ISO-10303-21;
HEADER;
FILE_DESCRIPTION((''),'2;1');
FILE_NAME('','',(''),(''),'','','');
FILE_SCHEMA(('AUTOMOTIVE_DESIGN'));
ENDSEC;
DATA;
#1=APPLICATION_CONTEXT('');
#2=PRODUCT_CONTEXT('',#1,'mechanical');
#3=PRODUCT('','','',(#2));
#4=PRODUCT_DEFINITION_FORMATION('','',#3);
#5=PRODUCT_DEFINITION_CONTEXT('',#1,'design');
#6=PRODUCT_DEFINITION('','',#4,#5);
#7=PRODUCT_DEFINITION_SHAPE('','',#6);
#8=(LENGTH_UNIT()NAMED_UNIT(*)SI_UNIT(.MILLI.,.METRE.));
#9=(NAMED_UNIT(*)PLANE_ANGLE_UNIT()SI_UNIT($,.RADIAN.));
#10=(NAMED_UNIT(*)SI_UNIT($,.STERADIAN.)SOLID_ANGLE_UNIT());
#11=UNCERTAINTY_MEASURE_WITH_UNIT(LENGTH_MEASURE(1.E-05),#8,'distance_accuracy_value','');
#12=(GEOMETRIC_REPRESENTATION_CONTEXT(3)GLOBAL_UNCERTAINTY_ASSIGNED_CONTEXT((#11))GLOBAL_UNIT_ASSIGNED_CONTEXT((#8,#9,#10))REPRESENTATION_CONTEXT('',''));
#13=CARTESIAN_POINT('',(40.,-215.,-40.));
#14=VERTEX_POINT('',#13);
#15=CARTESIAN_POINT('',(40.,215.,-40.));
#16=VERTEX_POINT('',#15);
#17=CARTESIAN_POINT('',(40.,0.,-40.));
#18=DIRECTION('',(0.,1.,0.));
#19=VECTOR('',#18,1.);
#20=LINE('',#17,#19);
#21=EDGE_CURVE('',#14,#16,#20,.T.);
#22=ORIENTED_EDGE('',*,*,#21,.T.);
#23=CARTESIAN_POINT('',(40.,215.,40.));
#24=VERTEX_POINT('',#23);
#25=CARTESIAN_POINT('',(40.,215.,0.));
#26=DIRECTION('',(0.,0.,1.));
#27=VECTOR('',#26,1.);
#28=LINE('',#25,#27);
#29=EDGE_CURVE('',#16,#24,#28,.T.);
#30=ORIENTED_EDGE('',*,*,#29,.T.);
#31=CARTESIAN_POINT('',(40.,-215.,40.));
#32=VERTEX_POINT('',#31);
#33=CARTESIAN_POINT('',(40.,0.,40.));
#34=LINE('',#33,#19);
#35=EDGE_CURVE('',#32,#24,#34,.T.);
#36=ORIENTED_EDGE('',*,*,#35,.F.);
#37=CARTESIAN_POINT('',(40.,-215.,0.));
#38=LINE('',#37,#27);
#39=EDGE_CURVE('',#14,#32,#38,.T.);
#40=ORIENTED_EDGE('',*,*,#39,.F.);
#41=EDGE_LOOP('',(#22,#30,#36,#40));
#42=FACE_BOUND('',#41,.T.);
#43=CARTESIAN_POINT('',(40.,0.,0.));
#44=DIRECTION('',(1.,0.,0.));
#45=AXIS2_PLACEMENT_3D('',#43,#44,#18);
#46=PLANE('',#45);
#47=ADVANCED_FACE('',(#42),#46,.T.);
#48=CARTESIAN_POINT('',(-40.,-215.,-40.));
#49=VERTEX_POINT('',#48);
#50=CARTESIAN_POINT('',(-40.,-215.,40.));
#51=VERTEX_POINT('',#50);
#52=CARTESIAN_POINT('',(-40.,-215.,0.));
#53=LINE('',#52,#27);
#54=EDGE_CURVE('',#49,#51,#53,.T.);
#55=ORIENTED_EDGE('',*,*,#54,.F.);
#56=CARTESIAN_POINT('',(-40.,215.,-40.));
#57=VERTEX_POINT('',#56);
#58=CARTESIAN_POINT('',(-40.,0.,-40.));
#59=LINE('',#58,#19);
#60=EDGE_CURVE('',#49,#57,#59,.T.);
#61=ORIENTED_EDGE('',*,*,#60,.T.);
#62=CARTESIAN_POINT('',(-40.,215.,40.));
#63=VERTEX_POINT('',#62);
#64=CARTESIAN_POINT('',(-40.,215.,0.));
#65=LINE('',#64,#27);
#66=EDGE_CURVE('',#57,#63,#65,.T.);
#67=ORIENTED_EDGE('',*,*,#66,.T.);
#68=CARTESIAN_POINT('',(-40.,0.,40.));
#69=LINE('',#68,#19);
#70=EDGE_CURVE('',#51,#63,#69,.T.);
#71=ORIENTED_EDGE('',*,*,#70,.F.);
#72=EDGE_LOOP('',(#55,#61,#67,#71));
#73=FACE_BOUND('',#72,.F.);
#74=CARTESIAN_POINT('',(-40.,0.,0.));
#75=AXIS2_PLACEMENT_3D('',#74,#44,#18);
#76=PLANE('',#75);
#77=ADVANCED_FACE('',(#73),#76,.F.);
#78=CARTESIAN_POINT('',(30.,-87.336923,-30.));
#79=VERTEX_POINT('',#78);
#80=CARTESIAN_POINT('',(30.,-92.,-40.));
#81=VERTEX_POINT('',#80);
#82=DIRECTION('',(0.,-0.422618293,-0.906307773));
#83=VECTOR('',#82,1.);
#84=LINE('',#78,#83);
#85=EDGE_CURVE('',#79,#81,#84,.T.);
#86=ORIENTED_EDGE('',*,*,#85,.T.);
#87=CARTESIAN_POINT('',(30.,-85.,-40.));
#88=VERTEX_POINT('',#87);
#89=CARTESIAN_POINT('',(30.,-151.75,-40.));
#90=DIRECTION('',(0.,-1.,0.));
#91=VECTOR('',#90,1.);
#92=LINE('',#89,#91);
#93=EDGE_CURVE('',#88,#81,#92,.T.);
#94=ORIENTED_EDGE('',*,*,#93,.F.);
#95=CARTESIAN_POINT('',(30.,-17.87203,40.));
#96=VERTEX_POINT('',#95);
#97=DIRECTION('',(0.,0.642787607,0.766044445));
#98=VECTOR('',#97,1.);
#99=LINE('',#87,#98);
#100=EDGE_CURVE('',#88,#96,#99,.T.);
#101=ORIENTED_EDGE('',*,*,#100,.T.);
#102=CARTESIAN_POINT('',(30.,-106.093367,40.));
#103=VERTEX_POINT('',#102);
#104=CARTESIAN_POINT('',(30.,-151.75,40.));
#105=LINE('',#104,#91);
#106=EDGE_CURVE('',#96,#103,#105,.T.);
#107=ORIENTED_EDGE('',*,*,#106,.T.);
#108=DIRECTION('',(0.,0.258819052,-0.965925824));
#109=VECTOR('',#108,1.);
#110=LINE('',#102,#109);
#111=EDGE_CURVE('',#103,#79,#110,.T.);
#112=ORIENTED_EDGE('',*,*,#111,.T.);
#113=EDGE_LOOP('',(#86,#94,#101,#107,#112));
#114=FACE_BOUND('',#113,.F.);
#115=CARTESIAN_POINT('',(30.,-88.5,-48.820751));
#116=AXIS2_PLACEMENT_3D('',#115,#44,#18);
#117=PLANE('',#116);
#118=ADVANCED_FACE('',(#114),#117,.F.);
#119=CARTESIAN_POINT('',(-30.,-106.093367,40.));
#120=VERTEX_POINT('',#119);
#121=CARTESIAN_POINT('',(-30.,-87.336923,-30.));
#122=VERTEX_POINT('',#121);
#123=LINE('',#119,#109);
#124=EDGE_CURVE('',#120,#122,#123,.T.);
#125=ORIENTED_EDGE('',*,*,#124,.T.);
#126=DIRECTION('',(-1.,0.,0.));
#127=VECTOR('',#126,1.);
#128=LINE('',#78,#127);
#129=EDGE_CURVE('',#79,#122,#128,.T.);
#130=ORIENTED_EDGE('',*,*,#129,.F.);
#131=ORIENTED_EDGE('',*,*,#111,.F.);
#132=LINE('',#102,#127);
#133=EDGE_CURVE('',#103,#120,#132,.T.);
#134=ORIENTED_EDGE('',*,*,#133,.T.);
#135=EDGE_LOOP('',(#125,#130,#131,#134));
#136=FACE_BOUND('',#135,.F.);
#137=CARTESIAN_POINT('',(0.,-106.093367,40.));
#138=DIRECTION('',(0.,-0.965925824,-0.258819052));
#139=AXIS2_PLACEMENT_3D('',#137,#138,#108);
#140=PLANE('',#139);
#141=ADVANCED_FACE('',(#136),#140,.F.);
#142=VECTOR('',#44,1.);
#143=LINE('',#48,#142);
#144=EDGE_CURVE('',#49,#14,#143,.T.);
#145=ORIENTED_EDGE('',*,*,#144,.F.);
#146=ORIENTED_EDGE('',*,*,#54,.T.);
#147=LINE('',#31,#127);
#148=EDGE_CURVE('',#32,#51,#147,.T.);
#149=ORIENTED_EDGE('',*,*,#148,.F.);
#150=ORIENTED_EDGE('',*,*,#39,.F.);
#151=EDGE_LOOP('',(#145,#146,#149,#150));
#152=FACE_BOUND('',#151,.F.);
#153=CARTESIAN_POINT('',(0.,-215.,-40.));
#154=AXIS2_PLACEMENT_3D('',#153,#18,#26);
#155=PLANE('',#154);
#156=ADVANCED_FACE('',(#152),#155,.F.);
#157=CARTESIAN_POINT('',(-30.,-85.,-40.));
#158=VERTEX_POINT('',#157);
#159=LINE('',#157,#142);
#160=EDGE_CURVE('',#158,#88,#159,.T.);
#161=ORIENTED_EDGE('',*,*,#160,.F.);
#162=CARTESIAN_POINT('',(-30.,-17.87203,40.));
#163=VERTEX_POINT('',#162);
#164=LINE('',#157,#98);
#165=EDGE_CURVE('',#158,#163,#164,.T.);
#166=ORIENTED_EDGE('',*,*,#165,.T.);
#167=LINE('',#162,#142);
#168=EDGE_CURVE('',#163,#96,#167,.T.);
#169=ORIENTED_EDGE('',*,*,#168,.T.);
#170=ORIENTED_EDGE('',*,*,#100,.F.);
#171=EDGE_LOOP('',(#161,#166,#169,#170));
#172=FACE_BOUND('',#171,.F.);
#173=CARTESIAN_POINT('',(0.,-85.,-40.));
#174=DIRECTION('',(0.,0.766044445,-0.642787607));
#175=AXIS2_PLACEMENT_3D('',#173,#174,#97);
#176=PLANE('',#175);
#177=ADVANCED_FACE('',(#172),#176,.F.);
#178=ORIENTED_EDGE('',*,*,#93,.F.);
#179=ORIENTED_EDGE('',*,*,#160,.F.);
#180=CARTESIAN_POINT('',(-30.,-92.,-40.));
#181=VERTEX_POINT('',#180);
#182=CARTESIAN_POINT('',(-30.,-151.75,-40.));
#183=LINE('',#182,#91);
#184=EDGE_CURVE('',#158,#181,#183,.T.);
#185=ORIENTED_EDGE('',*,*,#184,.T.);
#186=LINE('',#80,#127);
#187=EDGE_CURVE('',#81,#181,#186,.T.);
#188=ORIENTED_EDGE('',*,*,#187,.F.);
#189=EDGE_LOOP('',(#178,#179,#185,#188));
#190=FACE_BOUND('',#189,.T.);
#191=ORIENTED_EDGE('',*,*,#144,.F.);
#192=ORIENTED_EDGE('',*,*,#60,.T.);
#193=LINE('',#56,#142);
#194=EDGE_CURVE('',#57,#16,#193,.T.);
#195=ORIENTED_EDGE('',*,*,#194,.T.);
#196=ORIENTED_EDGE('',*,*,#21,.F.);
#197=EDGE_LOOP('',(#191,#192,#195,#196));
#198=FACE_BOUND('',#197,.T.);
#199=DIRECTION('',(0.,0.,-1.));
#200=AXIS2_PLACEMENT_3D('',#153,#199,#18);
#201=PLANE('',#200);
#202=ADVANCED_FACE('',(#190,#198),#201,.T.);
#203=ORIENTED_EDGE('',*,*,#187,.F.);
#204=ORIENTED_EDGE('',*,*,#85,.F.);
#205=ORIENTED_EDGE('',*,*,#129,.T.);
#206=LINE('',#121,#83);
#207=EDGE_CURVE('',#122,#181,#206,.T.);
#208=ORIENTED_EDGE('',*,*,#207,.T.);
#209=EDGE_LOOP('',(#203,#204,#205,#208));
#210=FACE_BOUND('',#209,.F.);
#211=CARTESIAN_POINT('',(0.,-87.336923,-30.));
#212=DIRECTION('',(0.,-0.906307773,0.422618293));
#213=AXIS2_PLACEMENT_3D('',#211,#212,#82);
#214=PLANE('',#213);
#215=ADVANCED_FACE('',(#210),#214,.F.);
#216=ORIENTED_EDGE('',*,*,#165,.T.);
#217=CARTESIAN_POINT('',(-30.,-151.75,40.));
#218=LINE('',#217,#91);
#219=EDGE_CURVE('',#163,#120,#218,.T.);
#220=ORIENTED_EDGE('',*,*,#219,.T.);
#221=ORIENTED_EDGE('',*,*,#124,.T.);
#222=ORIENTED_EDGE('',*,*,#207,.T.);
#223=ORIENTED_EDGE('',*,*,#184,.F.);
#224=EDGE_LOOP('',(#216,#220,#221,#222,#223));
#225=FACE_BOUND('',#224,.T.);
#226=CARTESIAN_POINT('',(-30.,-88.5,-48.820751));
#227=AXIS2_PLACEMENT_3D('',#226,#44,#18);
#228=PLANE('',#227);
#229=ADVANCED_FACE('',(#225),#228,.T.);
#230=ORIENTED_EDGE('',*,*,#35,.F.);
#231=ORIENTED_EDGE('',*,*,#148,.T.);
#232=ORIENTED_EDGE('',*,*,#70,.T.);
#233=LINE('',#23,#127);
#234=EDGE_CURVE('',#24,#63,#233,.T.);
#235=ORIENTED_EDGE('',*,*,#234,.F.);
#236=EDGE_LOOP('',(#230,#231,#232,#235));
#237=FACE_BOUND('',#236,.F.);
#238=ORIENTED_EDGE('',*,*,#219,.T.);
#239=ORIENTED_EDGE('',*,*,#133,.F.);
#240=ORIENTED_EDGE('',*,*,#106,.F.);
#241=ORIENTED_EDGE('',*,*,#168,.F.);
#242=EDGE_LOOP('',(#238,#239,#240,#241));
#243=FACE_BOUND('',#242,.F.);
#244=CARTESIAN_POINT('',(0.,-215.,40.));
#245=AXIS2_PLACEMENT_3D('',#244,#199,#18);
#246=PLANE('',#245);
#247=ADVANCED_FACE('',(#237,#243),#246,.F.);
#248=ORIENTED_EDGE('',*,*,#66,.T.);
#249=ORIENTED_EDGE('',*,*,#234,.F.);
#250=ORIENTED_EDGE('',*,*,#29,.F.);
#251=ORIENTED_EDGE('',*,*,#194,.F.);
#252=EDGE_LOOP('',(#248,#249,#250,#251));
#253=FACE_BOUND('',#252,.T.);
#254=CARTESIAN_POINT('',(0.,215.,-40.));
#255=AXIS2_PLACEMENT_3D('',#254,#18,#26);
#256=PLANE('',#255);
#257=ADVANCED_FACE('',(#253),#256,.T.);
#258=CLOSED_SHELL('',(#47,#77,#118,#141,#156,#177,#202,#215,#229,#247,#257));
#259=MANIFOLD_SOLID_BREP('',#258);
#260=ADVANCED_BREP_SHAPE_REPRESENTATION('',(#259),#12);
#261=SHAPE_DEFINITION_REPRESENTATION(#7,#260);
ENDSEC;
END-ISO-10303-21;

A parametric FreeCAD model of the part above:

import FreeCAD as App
import Part
import Sketcher
Q = App.Units.Quantity


def add_polygon(sketch, points):
    """Adds a closed chain of lines whose ends are joined by coincident constraints."""
    first, n = sketch.GeometryCount, len(points)
    for a, b in zip(points, points[1:] + points[:1]):
        sketch.addGeometry(Part.LineSegment(App.Vector(*a, 0), App.Vector(*b, 0)), False)
    for i in range(n):
        sketch.addConstraint(Sketcher.Constraint("Coincident", first + i, 2, first + (i + 1) % n, 1))

doc = App.newDocument("Part")
body = doc.addObject("PartDesign::Body", "Body")

# Sketch on YZ plane
sketch1 = body.newObject("Sketcher::SketchObject", "Sketch")
sketch1.AttachmentSupport = (doc.getObject("YZ_Plane"), [""])
sketch1.MapMode = "FlatFace"
add_polygon(sketch1, [(-215, 40), (-215, -40), (215, -40), (215, 40)])  # lines 0-3
sketch1.addConstraint([
    Sketcher.Constraint("Vertical", 0),
    Sketcher.Constraint("Horizontal", 1),
    Sketcher.Constraint("Vertical", 2),
    Sketcher.Constraint("Horizontal", 3),
    Sketcher.Constraint("Symmetric", 0, 2, 2, 2, -1, 1),
    Sketcher.Constraint("DistanceX", 1, 1, 1, 2, Q("430 mm")),
    Sketcher.Constraint("DistanceY", 0, 2, 0, 1, Q("80 mm")),
])
pad1 = body.newObject("PartDesign::Pad", "Pad")
pad1.Profile = sketch1
pad1.Length = 80
pad1.Midplane = True

# Sketch on YZ plane
sketch2 = body.newObject("Sketcher::SketchObject", "Sketch001")
sketch2.AttachmentSupport = (doc.getObject("YZ_Plane"), [""])
sketch2.MapMode = "FlatFace"
add_polygon(sketch2, [(-92, -40), (-92, -57.641502), (-85, -57.641502), (-85, -40), (-17.87203, 40), (-17.87203, 50), (-106.093367, 50), (-106.093367, 40), (-87.336923, -30)])  # lines 0-8
sketch2.addConstraint([
    Sketcher.Constraint("Vertical", 0),
    Sketcher.Constraint("Horizontal", 1),
    Sketcher.Constraint("Vertical", 2),
    Sketcher.Constraint("Vertical", 4),
    Sketcher.Constraint("Horizontal", 5),
    Sketcher.Constraint("Vertical", 6),
    Sketcher.Constraint("Horizontal", 3, 2, 6, 2),
    Sketcher.Constraint("Horizontal", 2, 2, 8, 2),
    Sketcher.Constraint("DistanceX", 1, 1, 1, 2, Q("7 mm")),
    Sketcher.Constraint("DistanceY", 4, 1, 4, 2, Q("10 mm")),
    Sketcher.Constraint("Angle", 3, Q("50 deg")),
    Sketcher.Constraint("Angle", 7, Q("-75 deg")),
    Sketcher.Constraint("Angle", 8, Q("-115.000002 deg")),
    Sketcher.Constraint("DistanceX", 0, 2, -1, 1, Q("92 mm")),
    Sketcher.Constraint("DistanceY", 2, 2, -1, 1, Q("40 mm")),
    Sketcher.Constraint("DistanceY", -1, 1, 3, 2, Q("40 mm")),
    Sketcher.Constraint("DistanceY", 7, 2, -1, 1, Q("30 mm")),
    Sketcher.Constraint("DistanceY", 0, 2, 0, 1, Q("17.641502 mm")),
])
pocket1 = body.newObject("PartDesign::Pocket", "Pocket")
pocket1.Profile = sketch2
pocket1.Length = 60
pocket1.Midplane = True

doc.recompute()
